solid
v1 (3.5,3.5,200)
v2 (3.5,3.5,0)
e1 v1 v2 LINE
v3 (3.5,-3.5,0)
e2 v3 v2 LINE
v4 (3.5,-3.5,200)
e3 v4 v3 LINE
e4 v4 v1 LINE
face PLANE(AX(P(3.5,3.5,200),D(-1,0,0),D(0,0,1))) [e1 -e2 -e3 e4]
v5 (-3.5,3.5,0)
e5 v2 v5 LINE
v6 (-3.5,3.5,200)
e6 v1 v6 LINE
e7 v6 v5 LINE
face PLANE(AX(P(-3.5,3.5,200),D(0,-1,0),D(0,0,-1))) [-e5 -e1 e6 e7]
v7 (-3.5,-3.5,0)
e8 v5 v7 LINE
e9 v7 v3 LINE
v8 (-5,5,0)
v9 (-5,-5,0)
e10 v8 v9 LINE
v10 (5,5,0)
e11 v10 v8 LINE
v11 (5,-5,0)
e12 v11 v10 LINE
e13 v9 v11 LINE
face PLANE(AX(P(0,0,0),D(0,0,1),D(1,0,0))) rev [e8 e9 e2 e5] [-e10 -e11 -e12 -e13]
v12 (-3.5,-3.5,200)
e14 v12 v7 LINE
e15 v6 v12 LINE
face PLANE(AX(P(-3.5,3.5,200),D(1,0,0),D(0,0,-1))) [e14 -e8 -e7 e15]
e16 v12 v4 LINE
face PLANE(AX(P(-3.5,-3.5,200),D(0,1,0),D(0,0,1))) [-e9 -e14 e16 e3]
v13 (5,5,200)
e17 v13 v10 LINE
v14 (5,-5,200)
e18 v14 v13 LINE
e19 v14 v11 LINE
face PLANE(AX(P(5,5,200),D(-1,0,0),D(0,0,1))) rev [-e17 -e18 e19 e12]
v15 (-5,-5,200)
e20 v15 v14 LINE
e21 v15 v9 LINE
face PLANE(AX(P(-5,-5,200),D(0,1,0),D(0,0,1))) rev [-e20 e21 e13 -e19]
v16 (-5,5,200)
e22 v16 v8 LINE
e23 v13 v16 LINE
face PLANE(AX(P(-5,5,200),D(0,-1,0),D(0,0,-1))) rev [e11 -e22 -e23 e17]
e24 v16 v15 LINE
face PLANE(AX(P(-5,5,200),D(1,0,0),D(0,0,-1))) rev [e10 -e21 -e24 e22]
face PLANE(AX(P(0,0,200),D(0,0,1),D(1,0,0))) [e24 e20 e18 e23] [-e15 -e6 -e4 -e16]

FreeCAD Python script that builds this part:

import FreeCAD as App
import Part
import Sketcher
from FreeCAD import Vector
Q = App.Units.Quantity

doc = App.newDocument("Part")
body = doc.addObject("PartDesign::Body", "Body")

# Sketch on XY plane
sketch1 = body.newObject("Sketcher::SketchObject", "Sketch")
sketch1.AttachmentSupport = (doc.getObject("XY_Plane"), [""])
sketch1.MapMode = "FlatFace"
sketch1.addGeometry([
    Part.LineSegment(Vector(-5, 5, 0), Vector(-5, -5, 0)),  # 0
    Part.LineSegment(Vector(-5, -5, 0), Vector(5, -5, 0)),  # 1
    Part.LineSegment(Vector(5, -5, 0), Vector(5, 5, 0)),  # 2
    Part.LineSegment(Vector(5, 5, 0), Vector(-5, 5, 0)),  # 3
    Part.LineSegment(Vector(3.5, -3.5, 0), Vector(-3.5, -3.5, 0)),  # 4
    Part.LineSegment(Vector(-3.5, -3.5, 0), Vector(-3.5, 3.5, 0)),  # 5
    Part.LineSegment(Vector(-3.5, 3.5, 0), Vector(3.5, 3.5, 0)),  # 6
    Part.LineSegment(Vector(3.5, 3.5, 0), Vector(3.5, -3.5, 0)),  # 7
], False)
sketch1.addConstraint([
    Sketcher.Constraint("Coincident", 0, 2, 1, 1),
    Sketcher.Constraint("Coincident", 1, 2, 2, 1),
    Sketcher.Constraint("Coincident", 2, 2, 3, 1),
    Sketcher.Constraint("Coincident", 3, 2, 0, 1),
    Sketcher.Constraint("Coincident", 4, 2, 5, 1),
    Sketcher.Constraint("Coincident", 5, 2, 6, 1),
    Sketcher.Constraint("Coincident", 6, 2, 7, 1),
    Sketcher.Constraint("Coincident", 7, 2, 4, 1),
    Sketcher.Constraint("Vertical", 0),
    Sketcher.Constraint("Horizontal", 1),
    Sketcher.Constraint("Vertical", 2),
    Sketcher.Constraint("Horizontal", 3),
    Sketcher.Constraint("Horizontal", 4),
    Sketcher.Constraint("Vertical", 5),
    Sketcher.Constraint("Horizontal", 6),
    Sketcher.Constraint("Vertical", 7),
    Sketcher.Constraint("Symmetric", 0, 2, 2, 2, -1, 1),
    Sketcher.Constraint("Symmetric", 4, 2, 6, 2, -1, 1),
    Sketcher.Constraint("Equal", 3, 0),
    Sketcher.Constraint("Equal", 6, 5),
    Sketcher.Constraint("DistanceX", 1, 1, 1, 2, Q("10 mm")),
    Sketcher.Constraint("DistanceX", 4, 2, 4, 1, Q("7 mm")),
])
pad1 = body.newObject("PartDesign::Pad", "Pad")
pad1.Profile = sketch1
pad1.Length = 200

doc.recompute()
